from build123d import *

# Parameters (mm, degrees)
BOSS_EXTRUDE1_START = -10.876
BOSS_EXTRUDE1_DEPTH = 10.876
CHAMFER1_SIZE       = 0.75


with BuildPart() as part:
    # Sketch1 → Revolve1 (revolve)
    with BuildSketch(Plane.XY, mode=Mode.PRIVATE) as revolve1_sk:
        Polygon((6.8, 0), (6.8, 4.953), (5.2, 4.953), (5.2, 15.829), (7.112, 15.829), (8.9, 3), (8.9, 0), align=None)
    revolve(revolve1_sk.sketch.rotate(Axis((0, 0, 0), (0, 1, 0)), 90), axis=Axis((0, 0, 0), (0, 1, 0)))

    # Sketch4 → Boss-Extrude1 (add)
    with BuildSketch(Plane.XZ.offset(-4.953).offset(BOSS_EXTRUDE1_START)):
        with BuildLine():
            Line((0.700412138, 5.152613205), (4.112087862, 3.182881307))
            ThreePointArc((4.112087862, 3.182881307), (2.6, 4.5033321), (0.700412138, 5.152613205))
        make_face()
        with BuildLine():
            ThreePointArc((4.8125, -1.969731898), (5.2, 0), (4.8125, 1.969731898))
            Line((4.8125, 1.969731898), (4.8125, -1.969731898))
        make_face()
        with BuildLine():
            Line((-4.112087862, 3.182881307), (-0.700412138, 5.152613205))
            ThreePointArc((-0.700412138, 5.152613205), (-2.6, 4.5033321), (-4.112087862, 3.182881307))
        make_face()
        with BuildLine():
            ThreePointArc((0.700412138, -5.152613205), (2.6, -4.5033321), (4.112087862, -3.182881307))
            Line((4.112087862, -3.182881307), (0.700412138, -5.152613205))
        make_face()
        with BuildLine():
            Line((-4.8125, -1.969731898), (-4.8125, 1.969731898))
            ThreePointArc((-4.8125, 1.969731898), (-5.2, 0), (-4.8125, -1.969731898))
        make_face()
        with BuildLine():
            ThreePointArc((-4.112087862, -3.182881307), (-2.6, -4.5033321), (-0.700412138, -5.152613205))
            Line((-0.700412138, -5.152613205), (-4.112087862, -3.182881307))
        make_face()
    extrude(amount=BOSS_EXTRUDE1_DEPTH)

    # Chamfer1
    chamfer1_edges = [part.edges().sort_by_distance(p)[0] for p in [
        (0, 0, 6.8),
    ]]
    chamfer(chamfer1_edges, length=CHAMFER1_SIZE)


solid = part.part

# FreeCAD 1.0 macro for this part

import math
import FreeCAD as App
import Part
import Sketcher
Q = App.Units.Quantity


def edges_at(feature, points):
    """Names of the edges that pass closest to the given points."""
    edges = feature.Shape.Edges
    near = lambda p: min(range(len(edges)), key=lambda i: edges[i].distToShape(Part.Vertex(*p))[0])
    return sorted({f"Edge{near(p) + 1}" for p in points})

doc = App.newDocument("Part")
body = doc.addObject("PartDesign::Body", "Body")

# Sketch on XY plane
sketch1 = body.newObject("Sketcher::SketchObject", "Sketch")
sketch1.AttachmentSupport = (doc.getObject("XY_Plane"), [""])
sketch1.MapMode = "FlatFace"
sketch1.addGeometry(Part.LineSegment(App.Vector(6.8, 5, 0), App.Vector(6.8, 0, 0)), False)
sketch1.addGeometry(Part.LineSegment(App.Vector(6.8, 0, 0), App.Vector(8.9, 0, 0)), False)
sketch1.addGeometry(Part.LineSegment(App.Vector(8.9, 0, 0), App.Vector(8.9, 3, 0)), False)
sketch1.addGeometry(Part.LineSegment(App.Vector(8.9, 3, 0), App.Vector(7.1, 15.8, 0)), False)
sketch1.addGeometry(Part.LineSegment(App.Vector(7.1, 15.8, 0), App.Vector(5.2, 15.8, 0)), False)
sketch1.addGeometry(Part.LineSegment(App.Vector(5.2, 15.8, 0), App.Vector(5.2, 5, 0)), False)
sketch1.addGeometry(Part.LineSegment(App.Vector(5.2, 5, 0), App.Vector(6.8, 5, 0)), False)
sketch1.addConstraint(Sketcher.Constraint("Coincident", 0, 2, 1, 1))
sketch1.addConstraint(Sketcher.Constraint("Coincident", 1, 2, 2, 1))
sketch1.addConstraint(Sketcher.Constraint("Coincident", 2, 2, 3, 1))
sketch1.addConstraint(Sketcher.Constraint("Coincident", 3, 2, 4, 1))
sketch1.addConstraint(Sketcher.Constraint("Coincident", 4, 2, 5, 1))
sketch1.addConstraint(Sketcher.Constraint("Coincident", 5, 2, 6, 1))
sketch1.addConstraint(Sketcher.Constraint("Coincident", 6, 2, 0, 1))
sketch1.addConstraint(Sketcher.Constraint("Vertical", 0))
sketch1.addConstraint(Sketcher.Constraint("Horizontal", 1))
sketch1.addConstraint(Sketcher.Constraint("Vertical", 2))
sketch1.addConstraint(Sketcher.Constraint("Horizontal", 4))
sketch1.addConstraint(Sketcher.Constraint("Vertical", 5))
sketch1.addConstraint(Sketcher.Constraint("Horizontal", 6))
sketch1.addConstraint(Sketcher.Constraint("PointOnObject", 0, 2, -1))
sketch1.addConstraint(Sketcher.Constraint("DistanceY", 2, 1, 2, 2, Q("3 mm")))
sketch1.addConstraint(Sketcher.Constraint("DistanceX", 1, 1, 1, 2, Q("2.1 mm")))
sketch1.addConstraint(Sketcher.Constraint("DistanceX", 6, 1, 6, 2, Q("1.6 mm")))
sketch1.addConstraint(Sketcher.Constraint("DistanceX", -1, 1, 0, 2, Q("6.8 mm")))
sketch1.addConstraint(Sketcher.Constraint("DistanceX", 4, 2, 4, 1, Q("1.912 mm")))
sketch1.addConstraint(Sketcher.Constraint("DistanceY", 0, 2, 0, 1, Q("4.953 mm")))
sketch1.addConstraint(Sketcher.Constraint("DistanceY", 5, 2, 5, 1, Q("10.876 mm")))
revolution = body.newObject("PartDesign::Revolution", "Revolution")
revolution.Profile = sketch1
revolution.ReferenceAxis = (sketch1, ["V_Axis"])
revolution.Angle = 360

# Sketch on XZ plane
sketch2 = body.newObject("Sketcher::SketchObject", "Sketch001")
sketch2.AttachmentSupport = (doc.getObject("XZ_Plane"), [""])
sketch2.MapMode = "FlatFace"
sketch2.AttachmentOffset = App.Placement(App.Vector(0, 0, -15.829), App.Rotation())
sketch2.addGeometry(Part.LineSegment(App.Vector(0.7, 5.2, 0), App.Vector(4.1, 3.2, 0)), False)
sketch2.addGeometry(Part.ArcOfCircle(Part.Circle(App.Vector(0, 0, 0), App.Vector(0, 0, 1), 5.2), math.radians(38), math.radians(82)), False)
sketch2.addGeometry(Part.ArcOfCircle(Part.Circle(App.Vector(0, 0, 0), App.Vector(0, 0, 1), 5.2), math.radians(-22), math.radians(22)), False)
sketch2.addGeometry(Part.LineSegment(App.Vector(4.8, 2, 0), App.Vector(4.8, -2, 0)), False)
sketch2.addGeometry(Part.LineSegment(App.Vector(-4.1, 3.2, 0), App.Vector(-0.7, 5.2, 0)), False)
sketch2.addGeometry(Part.ArcOfCircle(Part.Circle(App.Vector(0, 0, 0), App.Vector(0, 0, 1), 5.2), math.radians(98), math.radians(142)), False)
sketch2.addGeometry(Part.ArcOfCircle(Part.Circle(App.Vector(0, 0, 0), App.Vector(0, 0, 1), 5.2), math.radians(-82), math.radians(-38)), False)
sketch2.addGeometry(Part.LineSegment(App.Vector(4.1, -3.2, 0), App.Vector(0.7, -5.2, 0)), False)
sketch2.addGeometry(Part.LineSegment(App.Vector(-4.8, -2, 0), App.Vector(-4.8, 2, 0)), False)
sketch2.addGeometry(Part.ArcOfCircle(Part.Circle(App.Vector(0, 0, 0), App.Vector(0, 0, 1), 5.2), math.radians(158), math.radians(202)), False)
sketch2.addGeometry(Part.ArcOfCircle(Part.Circle(App.Vector(0, 0, 0), App.Vector(0, 0, 1), 5.2), math.radians(-142), math.radians(-98)), False)
sketch2.addGeometry(Part.LineSegment(App.Vector(-0.7, -5.2, 0), App.Vector(-4.1, -3.2, 0)), False)
sketch2.addConstraint(Sketcher.Constraint("Coincident", 0, 1, 1, 2))
sketch2.addConstraint(Sketcher.Constraint("Coincident", 1, 1, 0, 2))
sketch2.addConstraint(Sketcher.Constraint("Coincident", 2, 1, 3, 2))
sketch2.addConstraint(Sketcher.Constraint("Coincident", 3, 1, 2, 2))
sketch2.addConstraint(Sketcher.Constraint("Coincident", 4, 1, 5, 2))
sketch2.addConstraint(Sketcher.Constraint("Coincident", 5, 1, 4, 2))
sketch2.addConstraint(Sketcher.Constraint("Coincident", 6, 1, 7, 2))
sketch2.addConstraint(Sketcher.Constraint("Coincident", 7, 1, 6, 2))
sketch2.addConstraint(Sketcher.Constraint("Coincident", 8, 1, 9, 2))
sketch2.addConstraint(Sketcher.Constraint("Coincident", 9, 1, 8, 2))
sketch2.addConstraint(Sketcher.Constraint("Coincident", 10, 1, 11, 2))
sketch2.addConstraint(Sketcher.Constraint("Coincident", 11, 1, 10, 2))
sketch2.addConstraint(Sketcher.Constraint("Vertical", 3))
sketch2.addConstraint(Sketcher.Constraint("Vertical", 8))
sketch2.addConstraint(Sketcher.Constraint("Coincident", 1, 3, -1, 1))
sketch2.addConstraint(Sketcher.Constraint("Coincident", 2, 3, -1, 1))
sketch2.addConstraint(Sketcher.Constraint("Coincident", 5, 3, -1, 1))
sketch2.addConstraint(Sketcher.Constraint("Coincident", 6, 3, -1, 1))
sketch2.addConstraint(Sketcher.Constraint("Coincident", 9, 3, -1, 1))
sketch2.addConstraint(Sketcher.Constraint("Coincident", 10, 3, -1, 1))
sketch2.addConstraint(Sketcher.Constraint("Equal", 1, 2))
sketch2.addConstraint(Sketcher.Constraint("Equal", 2, 5))
sketch2.addConstraint(Sketcher.Constraint("Equal", 5, 6))
sketch2.addConstraint(Sketcher.Constraint("Equal", 6, 9))
sketch2.addConstraint(Sketcher.Constraint("Equal", 9, 10))
sketch2.addConstraint(Sketcher.Constraint("Parallel", 4, 7))
sketch2.addConstraint(Sketcher.Constraint("Parallel", 0, 11))
sketch2.addConstraint(Sketcher.Constraint("Horizontal", 1, 1, 4, 1))
sketch2.addConstraint(Sketcher.Constraint("Horizontal", 0, 1, 5, 1))
sketch2.addConstraint(Sketcher.Constraint("Horizontal", 2, 1, 8, 1))
sketch2.addConstraint(Sketcher.Constraint("Horizontal", 7, 1, 10, 1))
sketch2.addConstraint(Sketcher.Constraint("Vertical", 0, 1, 6, 1))
sketch2.addConstraint(Sketcher.Constraint("Radius", 1, Q("5.2 mm")))
sketch2.addConstraint(Sketcher.Constraint("Angle", 0, Q("-30 deg")))
sketch2.addConstraint(Sketcher.Constraint("DistanceX", -1, 1, 2, 1, Q("4.8125 mm")))
sketch2.addConstraint(Sketcher.Constraint("DistanceX", 4, 1, 0, 1, Q("4.8125 mm")))
pad1 = body.newObject("PartDesign::Pad", "Pad")
pad1.Profile = sketch2
pad1.Length = 10.876
doc.recompute()

chamfer = body.newObject("PartDesign::Chamfer", "Chamfer")
chamfer.Base = (pad1, edges_at(pad1, [(0, 0, 6.8)]))
chamfer.Size = 0.75

doc.recompute()
